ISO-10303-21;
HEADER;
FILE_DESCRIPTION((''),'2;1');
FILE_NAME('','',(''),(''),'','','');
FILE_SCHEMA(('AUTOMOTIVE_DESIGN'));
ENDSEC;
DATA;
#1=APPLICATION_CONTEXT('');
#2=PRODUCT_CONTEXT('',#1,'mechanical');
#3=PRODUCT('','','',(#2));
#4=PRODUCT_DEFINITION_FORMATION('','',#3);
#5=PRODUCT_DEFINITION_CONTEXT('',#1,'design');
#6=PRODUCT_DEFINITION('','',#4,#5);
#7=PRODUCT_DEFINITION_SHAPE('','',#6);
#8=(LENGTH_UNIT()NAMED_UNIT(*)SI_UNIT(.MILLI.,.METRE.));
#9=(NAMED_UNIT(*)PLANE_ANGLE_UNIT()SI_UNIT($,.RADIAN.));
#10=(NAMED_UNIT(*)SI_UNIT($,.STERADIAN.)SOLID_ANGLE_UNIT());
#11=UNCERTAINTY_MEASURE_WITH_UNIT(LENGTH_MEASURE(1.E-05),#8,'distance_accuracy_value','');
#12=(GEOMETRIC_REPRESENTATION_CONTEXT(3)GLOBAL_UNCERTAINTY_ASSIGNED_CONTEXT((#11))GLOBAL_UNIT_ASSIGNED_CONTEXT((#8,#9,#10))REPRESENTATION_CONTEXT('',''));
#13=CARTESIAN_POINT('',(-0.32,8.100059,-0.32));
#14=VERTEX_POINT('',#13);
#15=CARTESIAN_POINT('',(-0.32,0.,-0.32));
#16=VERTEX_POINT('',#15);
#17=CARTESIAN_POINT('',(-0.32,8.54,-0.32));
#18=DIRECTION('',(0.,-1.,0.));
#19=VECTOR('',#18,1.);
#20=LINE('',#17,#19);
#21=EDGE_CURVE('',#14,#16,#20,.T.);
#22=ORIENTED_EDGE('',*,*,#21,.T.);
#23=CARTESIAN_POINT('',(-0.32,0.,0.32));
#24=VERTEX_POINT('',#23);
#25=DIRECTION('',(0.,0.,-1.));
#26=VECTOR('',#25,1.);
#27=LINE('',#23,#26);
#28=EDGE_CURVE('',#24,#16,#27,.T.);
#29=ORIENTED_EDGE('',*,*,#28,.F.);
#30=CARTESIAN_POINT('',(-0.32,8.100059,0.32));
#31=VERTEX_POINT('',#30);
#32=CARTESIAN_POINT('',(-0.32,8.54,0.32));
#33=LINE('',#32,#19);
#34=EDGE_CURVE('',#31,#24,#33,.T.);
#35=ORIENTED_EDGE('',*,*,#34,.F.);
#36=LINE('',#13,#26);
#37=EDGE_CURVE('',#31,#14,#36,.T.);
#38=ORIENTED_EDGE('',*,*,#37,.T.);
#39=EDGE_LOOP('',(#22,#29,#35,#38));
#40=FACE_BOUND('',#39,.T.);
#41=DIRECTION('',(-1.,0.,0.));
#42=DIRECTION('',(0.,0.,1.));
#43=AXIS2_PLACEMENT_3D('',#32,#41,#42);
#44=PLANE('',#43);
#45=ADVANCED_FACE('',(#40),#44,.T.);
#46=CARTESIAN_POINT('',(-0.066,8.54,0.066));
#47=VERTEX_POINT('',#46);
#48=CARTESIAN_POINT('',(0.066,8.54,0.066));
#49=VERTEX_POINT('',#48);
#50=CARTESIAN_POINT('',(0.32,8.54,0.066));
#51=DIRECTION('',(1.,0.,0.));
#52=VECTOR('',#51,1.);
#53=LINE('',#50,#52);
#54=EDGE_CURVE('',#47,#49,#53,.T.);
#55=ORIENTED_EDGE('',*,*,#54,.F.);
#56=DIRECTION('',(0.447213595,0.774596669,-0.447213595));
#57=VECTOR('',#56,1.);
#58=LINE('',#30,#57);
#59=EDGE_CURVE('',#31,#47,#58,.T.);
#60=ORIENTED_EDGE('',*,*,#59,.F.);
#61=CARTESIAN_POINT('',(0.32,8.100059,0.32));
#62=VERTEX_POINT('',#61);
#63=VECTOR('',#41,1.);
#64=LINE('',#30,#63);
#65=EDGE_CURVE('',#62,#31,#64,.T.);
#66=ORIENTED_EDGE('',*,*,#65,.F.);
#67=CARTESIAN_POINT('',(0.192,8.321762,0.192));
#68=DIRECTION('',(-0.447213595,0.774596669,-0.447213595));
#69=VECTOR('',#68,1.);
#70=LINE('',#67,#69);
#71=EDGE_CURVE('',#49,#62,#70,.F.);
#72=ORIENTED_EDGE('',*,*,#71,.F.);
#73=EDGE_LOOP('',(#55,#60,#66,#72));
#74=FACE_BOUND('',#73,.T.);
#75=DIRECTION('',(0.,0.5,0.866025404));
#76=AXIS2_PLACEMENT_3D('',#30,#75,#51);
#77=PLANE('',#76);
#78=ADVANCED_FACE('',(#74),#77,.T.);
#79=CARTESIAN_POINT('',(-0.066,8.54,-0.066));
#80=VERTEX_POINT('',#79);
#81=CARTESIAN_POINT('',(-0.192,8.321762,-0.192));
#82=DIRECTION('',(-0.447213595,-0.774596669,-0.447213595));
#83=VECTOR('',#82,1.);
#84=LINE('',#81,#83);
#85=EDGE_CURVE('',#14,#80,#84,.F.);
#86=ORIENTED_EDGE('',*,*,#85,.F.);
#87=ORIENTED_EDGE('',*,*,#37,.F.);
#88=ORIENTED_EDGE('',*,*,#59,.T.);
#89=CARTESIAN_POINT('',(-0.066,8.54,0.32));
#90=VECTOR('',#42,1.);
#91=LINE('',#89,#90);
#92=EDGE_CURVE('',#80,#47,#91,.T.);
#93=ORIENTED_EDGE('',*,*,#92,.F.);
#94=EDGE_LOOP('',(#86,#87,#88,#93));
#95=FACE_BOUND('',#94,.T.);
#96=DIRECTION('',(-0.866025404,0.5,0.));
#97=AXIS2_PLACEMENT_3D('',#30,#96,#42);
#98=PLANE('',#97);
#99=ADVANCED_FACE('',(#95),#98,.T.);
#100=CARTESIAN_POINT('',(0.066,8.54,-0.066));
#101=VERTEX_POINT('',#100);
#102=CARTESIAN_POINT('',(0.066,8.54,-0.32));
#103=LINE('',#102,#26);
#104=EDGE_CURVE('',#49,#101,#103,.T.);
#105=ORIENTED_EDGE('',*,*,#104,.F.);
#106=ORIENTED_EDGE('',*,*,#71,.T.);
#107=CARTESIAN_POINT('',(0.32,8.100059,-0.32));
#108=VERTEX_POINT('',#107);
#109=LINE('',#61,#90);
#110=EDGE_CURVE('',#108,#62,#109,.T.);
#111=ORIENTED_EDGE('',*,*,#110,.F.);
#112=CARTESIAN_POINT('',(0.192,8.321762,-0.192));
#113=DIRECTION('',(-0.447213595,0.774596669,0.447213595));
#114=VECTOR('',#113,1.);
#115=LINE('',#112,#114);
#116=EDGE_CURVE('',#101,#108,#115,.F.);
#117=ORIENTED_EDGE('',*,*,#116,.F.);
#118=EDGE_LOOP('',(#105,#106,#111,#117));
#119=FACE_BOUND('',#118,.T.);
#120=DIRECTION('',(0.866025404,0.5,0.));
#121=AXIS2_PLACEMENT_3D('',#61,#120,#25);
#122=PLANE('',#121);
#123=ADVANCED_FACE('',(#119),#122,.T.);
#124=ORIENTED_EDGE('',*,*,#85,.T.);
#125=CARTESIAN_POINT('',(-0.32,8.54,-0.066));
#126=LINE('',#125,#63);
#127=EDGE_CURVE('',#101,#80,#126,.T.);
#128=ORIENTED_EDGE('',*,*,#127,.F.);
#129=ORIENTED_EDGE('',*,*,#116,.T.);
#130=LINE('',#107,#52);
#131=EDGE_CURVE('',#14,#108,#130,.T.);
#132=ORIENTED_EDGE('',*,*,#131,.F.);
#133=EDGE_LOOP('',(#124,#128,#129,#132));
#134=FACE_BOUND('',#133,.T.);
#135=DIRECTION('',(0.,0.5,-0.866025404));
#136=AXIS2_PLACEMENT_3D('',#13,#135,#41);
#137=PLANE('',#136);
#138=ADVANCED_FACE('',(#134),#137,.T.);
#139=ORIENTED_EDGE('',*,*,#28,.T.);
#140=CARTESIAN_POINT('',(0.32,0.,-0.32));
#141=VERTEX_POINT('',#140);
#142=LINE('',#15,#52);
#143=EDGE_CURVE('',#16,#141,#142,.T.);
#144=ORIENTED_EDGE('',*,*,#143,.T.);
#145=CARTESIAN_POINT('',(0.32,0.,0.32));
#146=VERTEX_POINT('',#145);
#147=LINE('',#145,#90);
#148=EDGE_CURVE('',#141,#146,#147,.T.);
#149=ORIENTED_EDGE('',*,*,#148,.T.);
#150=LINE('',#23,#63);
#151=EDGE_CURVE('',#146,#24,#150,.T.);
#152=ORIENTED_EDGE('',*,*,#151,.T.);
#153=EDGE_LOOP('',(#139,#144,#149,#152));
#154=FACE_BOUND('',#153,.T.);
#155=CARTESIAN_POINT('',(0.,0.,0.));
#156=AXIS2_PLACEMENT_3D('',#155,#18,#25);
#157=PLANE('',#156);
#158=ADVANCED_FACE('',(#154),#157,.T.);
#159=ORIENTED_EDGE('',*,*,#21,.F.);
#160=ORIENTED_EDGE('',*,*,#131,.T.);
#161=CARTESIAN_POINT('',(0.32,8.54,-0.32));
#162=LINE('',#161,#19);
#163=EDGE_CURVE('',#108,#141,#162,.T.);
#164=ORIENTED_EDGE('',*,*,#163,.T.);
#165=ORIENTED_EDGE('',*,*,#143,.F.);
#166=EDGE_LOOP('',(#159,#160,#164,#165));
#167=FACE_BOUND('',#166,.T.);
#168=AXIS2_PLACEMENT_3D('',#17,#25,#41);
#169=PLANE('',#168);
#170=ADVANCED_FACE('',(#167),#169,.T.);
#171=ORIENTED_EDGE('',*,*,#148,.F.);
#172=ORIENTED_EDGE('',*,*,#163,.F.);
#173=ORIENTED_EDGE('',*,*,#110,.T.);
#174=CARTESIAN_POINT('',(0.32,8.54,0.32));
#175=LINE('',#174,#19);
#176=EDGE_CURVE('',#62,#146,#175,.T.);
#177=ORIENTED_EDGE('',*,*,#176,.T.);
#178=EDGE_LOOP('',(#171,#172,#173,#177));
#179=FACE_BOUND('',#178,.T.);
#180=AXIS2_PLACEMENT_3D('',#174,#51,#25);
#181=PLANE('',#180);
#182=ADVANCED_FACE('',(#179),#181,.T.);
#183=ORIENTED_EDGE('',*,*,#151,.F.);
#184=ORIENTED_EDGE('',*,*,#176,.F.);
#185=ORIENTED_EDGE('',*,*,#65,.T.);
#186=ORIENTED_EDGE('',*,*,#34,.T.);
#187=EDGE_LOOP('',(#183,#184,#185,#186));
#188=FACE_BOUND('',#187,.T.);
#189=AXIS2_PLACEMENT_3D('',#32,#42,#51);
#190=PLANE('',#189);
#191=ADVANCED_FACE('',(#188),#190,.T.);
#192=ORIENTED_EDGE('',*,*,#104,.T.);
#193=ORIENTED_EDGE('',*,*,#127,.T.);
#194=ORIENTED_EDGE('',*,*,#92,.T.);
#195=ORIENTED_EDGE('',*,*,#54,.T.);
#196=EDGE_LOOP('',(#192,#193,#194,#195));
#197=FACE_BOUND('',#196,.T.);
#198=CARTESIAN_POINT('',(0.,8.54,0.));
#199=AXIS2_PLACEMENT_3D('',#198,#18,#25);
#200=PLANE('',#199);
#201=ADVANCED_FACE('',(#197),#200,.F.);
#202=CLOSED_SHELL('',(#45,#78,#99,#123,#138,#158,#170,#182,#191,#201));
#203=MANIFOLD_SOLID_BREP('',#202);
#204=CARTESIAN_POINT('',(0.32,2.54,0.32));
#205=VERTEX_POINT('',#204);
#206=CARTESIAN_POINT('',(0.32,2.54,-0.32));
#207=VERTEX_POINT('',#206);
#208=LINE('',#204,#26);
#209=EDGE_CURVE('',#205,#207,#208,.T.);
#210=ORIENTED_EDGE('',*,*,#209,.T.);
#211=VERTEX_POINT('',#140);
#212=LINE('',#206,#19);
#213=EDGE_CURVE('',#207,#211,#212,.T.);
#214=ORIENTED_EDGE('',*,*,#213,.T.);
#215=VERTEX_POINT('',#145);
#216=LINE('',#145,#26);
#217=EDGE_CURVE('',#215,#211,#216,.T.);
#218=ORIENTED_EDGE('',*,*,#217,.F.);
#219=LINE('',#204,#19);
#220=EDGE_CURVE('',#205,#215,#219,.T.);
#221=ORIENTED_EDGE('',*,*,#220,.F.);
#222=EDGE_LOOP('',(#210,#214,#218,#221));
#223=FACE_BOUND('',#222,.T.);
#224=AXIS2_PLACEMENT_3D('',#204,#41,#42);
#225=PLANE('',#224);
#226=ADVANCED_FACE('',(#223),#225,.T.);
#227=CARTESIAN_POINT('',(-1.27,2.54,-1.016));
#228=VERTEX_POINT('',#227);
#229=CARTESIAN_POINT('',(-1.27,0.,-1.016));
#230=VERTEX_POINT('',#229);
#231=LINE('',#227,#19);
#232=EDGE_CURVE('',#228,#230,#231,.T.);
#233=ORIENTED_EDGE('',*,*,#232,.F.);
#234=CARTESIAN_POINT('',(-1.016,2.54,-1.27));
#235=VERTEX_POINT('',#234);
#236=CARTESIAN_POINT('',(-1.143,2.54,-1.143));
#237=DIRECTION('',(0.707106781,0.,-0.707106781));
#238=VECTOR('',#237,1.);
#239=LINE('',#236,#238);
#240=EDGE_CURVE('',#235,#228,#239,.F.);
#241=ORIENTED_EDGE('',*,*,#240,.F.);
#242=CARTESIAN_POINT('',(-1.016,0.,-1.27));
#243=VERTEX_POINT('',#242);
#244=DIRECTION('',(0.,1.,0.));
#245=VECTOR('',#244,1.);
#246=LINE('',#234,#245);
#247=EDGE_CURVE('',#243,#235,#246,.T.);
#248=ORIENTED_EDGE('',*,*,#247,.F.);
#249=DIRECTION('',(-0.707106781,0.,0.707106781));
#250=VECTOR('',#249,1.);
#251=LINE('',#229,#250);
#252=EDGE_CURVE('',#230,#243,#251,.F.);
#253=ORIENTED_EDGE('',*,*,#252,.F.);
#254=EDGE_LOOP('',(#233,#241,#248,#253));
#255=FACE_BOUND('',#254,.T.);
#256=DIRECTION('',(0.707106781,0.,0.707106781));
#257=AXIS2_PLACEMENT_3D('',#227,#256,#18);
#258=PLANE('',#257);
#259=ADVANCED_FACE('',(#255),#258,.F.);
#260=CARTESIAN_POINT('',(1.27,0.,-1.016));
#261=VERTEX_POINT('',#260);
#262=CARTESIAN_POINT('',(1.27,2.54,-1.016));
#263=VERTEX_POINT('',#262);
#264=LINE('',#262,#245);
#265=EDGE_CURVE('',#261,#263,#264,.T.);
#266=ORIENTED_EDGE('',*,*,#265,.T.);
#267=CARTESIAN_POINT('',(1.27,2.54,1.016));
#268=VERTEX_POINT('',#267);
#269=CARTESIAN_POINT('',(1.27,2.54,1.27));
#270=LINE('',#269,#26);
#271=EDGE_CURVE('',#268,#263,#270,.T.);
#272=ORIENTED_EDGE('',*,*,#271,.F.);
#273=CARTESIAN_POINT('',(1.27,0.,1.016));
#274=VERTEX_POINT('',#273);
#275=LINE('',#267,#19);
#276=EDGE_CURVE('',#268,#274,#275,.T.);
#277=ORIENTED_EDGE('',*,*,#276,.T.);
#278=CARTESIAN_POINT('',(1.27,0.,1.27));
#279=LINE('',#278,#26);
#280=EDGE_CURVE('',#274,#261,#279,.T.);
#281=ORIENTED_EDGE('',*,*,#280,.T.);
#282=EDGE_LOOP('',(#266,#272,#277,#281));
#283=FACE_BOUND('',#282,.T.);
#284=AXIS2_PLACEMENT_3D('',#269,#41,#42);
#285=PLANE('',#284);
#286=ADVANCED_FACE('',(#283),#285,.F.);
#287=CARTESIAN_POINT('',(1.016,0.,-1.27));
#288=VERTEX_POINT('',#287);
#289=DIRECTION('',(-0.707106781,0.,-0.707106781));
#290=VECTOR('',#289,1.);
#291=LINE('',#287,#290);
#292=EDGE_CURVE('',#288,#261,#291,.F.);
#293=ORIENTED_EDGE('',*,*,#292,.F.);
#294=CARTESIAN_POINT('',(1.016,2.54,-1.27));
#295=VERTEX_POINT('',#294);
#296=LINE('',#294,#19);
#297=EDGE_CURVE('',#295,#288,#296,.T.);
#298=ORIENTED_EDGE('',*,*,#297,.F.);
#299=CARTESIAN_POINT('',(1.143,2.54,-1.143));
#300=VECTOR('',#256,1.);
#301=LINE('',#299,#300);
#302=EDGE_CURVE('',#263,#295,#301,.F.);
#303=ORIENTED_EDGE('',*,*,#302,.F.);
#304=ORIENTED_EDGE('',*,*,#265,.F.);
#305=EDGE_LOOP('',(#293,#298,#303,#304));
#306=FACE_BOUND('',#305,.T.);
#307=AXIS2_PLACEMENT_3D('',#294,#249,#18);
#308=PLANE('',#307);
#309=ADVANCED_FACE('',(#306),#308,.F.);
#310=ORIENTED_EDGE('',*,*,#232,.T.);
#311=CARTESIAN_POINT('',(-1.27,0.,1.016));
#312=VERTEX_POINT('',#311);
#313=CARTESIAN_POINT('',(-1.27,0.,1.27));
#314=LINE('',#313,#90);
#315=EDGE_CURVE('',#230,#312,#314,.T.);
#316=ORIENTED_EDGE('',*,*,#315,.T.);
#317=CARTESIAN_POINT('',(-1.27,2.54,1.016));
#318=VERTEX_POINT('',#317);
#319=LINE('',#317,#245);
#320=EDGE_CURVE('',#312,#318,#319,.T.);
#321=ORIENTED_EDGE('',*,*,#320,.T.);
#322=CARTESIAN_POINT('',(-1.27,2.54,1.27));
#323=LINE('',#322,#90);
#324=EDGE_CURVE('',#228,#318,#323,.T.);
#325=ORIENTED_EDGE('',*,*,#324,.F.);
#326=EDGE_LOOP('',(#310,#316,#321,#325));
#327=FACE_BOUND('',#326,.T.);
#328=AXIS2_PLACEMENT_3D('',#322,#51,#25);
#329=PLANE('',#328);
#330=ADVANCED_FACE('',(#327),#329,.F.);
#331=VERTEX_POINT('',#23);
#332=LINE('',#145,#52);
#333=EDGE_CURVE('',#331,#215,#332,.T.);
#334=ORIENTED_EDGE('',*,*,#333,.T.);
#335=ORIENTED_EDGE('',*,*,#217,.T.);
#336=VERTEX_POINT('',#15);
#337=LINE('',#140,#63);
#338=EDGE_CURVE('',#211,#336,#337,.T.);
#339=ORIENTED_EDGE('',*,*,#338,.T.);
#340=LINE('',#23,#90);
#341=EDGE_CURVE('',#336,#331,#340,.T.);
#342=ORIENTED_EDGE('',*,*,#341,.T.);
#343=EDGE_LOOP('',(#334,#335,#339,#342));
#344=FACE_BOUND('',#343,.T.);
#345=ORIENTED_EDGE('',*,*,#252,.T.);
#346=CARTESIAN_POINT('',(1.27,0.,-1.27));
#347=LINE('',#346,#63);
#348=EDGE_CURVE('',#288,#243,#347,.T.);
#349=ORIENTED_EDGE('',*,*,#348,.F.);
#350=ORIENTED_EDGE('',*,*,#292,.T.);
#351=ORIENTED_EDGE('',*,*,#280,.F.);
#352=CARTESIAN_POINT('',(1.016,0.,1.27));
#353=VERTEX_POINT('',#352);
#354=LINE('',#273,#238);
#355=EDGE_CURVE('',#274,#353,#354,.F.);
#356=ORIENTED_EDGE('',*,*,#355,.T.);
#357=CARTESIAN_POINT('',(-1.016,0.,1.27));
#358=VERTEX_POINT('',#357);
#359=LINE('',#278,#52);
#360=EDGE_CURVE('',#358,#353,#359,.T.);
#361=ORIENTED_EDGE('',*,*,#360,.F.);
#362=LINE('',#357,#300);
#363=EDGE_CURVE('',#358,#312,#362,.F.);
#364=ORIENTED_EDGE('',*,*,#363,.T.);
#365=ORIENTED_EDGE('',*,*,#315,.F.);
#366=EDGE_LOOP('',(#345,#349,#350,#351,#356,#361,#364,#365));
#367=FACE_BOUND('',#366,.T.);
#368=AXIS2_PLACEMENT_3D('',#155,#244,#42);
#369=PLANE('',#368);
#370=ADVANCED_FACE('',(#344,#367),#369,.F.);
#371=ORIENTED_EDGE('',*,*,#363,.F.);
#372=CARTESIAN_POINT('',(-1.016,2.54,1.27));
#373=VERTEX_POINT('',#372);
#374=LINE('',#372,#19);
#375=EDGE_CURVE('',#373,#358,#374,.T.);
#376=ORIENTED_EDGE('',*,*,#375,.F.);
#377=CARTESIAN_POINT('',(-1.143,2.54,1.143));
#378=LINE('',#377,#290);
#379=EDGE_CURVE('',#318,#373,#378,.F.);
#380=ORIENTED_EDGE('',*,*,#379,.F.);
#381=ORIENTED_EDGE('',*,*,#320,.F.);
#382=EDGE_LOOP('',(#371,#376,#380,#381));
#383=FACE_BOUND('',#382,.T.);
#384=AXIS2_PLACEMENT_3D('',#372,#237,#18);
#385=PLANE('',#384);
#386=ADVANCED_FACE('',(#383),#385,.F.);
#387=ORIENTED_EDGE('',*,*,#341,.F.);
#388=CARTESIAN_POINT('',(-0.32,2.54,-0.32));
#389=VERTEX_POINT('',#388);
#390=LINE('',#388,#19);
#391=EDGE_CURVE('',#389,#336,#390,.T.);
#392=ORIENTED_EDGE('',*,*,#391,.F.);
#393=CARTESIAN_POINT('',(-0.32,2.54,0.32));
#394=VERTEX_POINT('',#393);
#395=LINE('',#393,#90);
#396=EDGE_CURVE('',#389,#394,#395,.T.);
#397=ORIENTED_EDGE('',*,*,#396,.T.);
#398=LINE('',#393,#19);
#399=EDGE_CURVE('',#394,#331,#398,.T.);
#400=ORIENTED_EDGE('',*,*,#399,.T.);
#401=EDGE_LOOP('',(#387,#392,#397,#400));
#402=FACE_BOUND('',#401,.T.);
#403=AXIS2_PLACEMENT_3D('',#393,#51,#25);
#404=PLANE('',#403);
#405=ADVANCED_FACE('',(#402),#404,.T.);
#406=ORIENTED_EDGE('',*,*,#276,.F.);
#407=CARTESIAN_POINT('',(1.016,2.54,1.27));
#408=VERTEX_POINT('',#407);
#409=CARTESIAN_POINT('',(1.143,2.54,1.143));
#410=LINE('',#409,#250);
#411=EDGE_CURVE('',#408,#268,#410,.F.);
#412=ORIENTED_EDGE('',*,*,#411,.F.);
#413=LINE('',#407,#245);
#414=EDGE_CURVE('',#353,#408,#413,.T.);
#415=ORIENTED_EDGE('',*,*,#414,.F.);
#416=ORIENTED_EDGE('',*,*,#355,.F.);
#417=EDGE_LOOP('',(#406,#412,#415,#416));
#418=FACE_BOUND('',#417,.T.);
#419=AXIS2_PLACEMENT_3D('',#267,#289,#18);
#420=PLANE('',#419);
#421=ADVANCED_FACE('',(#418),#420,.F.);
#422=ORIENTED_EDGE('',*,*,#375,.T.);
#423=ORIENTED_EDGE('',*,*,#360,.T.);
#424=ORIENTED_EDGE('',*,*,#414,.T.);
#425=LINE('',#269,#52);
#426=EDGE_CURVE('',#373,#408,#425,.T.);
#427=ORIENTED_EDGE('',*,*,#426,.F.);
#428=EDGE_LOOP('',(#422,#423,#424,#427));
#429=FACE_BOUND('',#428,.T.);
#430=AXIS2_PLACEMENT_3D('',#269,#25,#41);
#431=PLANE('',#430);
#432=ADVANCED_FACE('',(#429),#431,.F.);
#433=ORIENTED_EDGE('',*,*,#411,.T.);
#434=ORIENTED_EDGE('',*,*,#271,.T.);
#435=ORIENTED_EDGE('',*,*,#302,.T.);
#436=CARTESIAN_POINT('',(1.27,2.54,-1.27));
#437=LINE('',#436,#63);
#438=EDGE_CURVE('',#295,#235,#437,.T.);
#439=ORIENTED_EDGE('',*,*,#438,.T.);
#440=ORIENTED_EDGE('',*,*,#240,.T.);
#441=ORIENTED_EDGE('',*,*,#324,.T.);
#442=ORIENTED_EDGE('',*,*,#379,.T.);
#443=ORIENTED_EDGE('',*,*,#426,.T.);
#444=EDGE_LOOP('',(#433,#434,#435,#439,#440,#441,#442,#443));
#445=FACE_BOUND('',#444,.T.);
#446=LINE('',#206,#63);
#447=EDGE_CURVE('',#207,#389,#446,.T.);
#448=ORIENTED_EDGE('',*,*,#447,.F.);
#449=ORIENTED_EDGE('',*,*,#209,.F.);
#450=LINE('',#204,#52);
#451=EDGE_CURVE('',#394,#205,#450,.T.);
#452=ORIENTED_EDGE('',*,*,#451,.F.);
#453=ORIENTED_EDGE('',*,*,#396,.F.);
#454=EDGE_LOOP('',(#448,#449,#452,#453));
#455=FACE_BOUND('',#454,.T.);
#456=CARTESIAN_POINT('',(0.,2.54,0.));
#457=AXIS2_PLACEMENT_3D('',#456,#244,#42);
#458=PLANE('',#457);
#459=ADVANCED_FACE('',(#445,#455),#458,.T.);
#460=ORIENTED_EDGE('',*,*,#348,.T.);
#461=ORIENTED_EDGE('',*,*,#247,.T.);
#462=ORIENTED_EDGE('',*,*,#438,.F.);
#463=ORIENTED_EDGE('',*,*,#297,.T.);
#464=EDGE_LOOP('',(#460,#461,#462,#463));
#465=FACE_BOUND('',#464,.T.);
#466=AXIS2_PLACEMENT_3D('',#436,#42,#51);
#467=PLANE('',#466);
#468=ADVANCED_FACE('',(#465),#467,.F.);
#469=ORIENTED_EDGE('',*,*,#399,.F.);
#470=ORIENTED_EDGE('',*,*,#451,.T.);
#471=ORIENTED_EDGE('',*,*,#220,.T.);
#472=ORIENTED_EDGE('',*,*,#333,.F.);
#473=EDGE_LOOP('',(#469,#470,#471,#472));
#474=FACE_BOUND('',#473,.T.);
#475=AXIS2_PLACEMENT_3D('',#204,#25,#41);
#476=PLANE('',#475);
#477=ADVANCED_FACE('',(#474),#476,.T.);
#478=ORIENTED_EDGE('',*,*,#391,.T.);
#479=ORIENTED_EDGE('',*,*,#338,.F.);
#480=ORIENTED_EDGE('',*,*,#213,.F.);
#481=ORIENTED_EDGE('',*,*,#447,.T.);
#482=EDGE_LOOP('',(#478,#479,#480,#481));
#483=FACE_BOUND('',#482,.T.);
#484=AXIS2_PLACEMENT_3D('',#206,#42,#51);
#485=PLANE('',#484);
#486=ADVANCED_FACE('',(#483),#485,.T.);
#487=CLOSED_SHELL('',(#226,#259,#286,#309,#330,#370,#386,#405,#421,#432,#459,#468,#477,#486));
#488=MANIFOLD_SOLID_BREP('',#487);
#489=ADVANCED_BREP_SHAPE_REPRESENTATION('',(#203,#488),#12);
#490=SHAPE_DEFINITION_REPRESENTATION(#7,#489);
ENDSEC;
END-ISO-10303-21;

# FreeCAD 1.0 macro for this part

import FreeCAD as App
import Part
import Sketcher
from FreeCAD import Vector
Q = App.Units.Quantity


def edges_at(feature, points):
    """Names of the edges that pass closest to the given points."""
    edges = feature.Shape.Edges
    near = lambda p: min(range(len(edges)), key=lambda i: edges[i].distToShape(Part.Vertex(*p))[0])
    return sorted({f"Edge{near(p) + 1}" for p in points})


def add_polygon(sketch, points):
    """Adds a closed chain of lines whose ends are joined by coincident constraints."""
    first, n = sketch.GeometryCount, len(points)
    for a, b in zip(points, points[1:] + points[:1]):
        sketch.addGeometry(Part.LineSegment(App.Vector(*a, 0), App.Vector(*b, 0)), False)
    for i in range(n):
        sketch.addConstraint(Sketcher.Constraint("Coincident", first + i, 2, first + (i + 1) % n, 1))

doc = App.newDocument("Part")
body = doc.addObject("PartDesign::Body", "Body")

# Sketch on XZ plane
sketch1 = doc.addObject("Sketcher::SketchObject", "Sketch")
body.addObject(sketch1)
sketch1.AttachmentSupport = (doc.XZ_Plane, [""])
sketch1.MapMode = "FlatFace"
add_polygon(sketch1, [(-1.3, -1.3), (-1.3, 1.3), (1.3, 1.3), (1.3, -1.3)])  # lines 0-3
add_polygon(sketch1, [(0.3, 0.3), (-0.3, 0.3), (-0.3, -0.3), (0.3, -0.3)])  # lines 4-7
sketch1.addConstraint([
    Sketcher.Constraint("Vertical", 0),
    Sketcher.Constraint("Horizontal", 1),
    Sketcher.Constraint("Vertical", 2),
    Sketcher.Constraint("Horizontal", 3),
    Sketcher.Constraint("Horizontal", 4),
    Sketcher.Constraint("Vertical", 5),
    Sketcher.Constraint("Horizontal", 6),
    Sketcher.Constraint("Vertical", 7),
    Sketcher.Constraint("Symmetric", 0, 2, 2, 2, -1, 1),
    Sketcher.Constraint("Symmetric", 4, 2, 6, 2, -1, 1),
    Sketcher.Constraint("Equal", 3, 0),
    Sketcher.Constraint("Equal", 6, 5),
    Sketcher.Constraint("DistanceX", 1, 1, 1, 2, Q("0.1 in")),
    Sketcher.Constraint("DistanceX", 4, 2, 4, 1, 0.64),
])
pad1 = doc.addObject("PartDesign::Pad", "Pad")
body.addObject(pad1)
pad1.Profile = sketch1
pad1.Length = Q("0.1 in")
pad1.Reversed = True
doc.recompute()

chamfer = doc.addObject("PartDesign::Chamfer", "Chamfer")
body.addObject(chamfer)
chamfer.Base = (pad1, edges_at(pad1, [
    (-1.27, 1.27, -1.27),
    (1.27, 1.27, -1.27),
    (1.27, 1.27, 1.27),
    (-1.27, 1.27, 1.27),
]))
chamfer.Size = Q("0.01 in")
body2 = doc.addObject("PartDesign::Body", "Body001")

# Sketch on XZ plane
sketch2 = doc.addObject("Sketcher::SketchObject", "Sketch001")
body2.addObject(sketch2)
sketch2.AttachmentSupport = (doc.getObject("XZ_Plane001"), [""])
sketch2.MapMode = "FlatFace"
add_polygon(sketch2, [(-0.3, 0.3), (-0.3, -0.3), (0.3, -0.3), (0.3, 0.3)])  # lines 0-3
sketch2.addConstraint([
    Sketcher.Constraint("Vertical", 0),
    Sketcher.Constraint("Horizontal", 1),
    Sketcher.Constraint("Vertical", 2),
    Sketcher.Constraint("Horizontal", 3),
    Sketcher.Constraint("Symmetric", 0, 2, 2, 2, -1, 1),
    Sketcher.Constraint("Equal", 3, 0),
    Sketcher.Constraint("DistanceX", 1, 1, 1, 2, 0.64),
])
pad2 = doc.addObject("PartDesign::Pad", "Pad001")
body2.addObject(pad2)
pad2.Profile = sketch2
pad2.Length = 8.54
pad2.Reversed = True
doc.recompute()

chamfer2 = doc.addObject("PartDesign::Chamfer", "Chamfer001")
body2.addObject(chamfer2)
chamfer2.Base = (pad2, edges_at(pad2, [
    (0.32, 8.54, 0),
    (0, 8.54, 0.32),
    (-0.32, 8.54, 0),
    (0, 8.54, -0.32),
]))
chamfer2.ChamferType = "Two distances"
chamfer2.Size = Q("0.01 in")
chamfer2.Size2 = 0.439941
chamfer2.FlipDirection = True

doc.recompute()
